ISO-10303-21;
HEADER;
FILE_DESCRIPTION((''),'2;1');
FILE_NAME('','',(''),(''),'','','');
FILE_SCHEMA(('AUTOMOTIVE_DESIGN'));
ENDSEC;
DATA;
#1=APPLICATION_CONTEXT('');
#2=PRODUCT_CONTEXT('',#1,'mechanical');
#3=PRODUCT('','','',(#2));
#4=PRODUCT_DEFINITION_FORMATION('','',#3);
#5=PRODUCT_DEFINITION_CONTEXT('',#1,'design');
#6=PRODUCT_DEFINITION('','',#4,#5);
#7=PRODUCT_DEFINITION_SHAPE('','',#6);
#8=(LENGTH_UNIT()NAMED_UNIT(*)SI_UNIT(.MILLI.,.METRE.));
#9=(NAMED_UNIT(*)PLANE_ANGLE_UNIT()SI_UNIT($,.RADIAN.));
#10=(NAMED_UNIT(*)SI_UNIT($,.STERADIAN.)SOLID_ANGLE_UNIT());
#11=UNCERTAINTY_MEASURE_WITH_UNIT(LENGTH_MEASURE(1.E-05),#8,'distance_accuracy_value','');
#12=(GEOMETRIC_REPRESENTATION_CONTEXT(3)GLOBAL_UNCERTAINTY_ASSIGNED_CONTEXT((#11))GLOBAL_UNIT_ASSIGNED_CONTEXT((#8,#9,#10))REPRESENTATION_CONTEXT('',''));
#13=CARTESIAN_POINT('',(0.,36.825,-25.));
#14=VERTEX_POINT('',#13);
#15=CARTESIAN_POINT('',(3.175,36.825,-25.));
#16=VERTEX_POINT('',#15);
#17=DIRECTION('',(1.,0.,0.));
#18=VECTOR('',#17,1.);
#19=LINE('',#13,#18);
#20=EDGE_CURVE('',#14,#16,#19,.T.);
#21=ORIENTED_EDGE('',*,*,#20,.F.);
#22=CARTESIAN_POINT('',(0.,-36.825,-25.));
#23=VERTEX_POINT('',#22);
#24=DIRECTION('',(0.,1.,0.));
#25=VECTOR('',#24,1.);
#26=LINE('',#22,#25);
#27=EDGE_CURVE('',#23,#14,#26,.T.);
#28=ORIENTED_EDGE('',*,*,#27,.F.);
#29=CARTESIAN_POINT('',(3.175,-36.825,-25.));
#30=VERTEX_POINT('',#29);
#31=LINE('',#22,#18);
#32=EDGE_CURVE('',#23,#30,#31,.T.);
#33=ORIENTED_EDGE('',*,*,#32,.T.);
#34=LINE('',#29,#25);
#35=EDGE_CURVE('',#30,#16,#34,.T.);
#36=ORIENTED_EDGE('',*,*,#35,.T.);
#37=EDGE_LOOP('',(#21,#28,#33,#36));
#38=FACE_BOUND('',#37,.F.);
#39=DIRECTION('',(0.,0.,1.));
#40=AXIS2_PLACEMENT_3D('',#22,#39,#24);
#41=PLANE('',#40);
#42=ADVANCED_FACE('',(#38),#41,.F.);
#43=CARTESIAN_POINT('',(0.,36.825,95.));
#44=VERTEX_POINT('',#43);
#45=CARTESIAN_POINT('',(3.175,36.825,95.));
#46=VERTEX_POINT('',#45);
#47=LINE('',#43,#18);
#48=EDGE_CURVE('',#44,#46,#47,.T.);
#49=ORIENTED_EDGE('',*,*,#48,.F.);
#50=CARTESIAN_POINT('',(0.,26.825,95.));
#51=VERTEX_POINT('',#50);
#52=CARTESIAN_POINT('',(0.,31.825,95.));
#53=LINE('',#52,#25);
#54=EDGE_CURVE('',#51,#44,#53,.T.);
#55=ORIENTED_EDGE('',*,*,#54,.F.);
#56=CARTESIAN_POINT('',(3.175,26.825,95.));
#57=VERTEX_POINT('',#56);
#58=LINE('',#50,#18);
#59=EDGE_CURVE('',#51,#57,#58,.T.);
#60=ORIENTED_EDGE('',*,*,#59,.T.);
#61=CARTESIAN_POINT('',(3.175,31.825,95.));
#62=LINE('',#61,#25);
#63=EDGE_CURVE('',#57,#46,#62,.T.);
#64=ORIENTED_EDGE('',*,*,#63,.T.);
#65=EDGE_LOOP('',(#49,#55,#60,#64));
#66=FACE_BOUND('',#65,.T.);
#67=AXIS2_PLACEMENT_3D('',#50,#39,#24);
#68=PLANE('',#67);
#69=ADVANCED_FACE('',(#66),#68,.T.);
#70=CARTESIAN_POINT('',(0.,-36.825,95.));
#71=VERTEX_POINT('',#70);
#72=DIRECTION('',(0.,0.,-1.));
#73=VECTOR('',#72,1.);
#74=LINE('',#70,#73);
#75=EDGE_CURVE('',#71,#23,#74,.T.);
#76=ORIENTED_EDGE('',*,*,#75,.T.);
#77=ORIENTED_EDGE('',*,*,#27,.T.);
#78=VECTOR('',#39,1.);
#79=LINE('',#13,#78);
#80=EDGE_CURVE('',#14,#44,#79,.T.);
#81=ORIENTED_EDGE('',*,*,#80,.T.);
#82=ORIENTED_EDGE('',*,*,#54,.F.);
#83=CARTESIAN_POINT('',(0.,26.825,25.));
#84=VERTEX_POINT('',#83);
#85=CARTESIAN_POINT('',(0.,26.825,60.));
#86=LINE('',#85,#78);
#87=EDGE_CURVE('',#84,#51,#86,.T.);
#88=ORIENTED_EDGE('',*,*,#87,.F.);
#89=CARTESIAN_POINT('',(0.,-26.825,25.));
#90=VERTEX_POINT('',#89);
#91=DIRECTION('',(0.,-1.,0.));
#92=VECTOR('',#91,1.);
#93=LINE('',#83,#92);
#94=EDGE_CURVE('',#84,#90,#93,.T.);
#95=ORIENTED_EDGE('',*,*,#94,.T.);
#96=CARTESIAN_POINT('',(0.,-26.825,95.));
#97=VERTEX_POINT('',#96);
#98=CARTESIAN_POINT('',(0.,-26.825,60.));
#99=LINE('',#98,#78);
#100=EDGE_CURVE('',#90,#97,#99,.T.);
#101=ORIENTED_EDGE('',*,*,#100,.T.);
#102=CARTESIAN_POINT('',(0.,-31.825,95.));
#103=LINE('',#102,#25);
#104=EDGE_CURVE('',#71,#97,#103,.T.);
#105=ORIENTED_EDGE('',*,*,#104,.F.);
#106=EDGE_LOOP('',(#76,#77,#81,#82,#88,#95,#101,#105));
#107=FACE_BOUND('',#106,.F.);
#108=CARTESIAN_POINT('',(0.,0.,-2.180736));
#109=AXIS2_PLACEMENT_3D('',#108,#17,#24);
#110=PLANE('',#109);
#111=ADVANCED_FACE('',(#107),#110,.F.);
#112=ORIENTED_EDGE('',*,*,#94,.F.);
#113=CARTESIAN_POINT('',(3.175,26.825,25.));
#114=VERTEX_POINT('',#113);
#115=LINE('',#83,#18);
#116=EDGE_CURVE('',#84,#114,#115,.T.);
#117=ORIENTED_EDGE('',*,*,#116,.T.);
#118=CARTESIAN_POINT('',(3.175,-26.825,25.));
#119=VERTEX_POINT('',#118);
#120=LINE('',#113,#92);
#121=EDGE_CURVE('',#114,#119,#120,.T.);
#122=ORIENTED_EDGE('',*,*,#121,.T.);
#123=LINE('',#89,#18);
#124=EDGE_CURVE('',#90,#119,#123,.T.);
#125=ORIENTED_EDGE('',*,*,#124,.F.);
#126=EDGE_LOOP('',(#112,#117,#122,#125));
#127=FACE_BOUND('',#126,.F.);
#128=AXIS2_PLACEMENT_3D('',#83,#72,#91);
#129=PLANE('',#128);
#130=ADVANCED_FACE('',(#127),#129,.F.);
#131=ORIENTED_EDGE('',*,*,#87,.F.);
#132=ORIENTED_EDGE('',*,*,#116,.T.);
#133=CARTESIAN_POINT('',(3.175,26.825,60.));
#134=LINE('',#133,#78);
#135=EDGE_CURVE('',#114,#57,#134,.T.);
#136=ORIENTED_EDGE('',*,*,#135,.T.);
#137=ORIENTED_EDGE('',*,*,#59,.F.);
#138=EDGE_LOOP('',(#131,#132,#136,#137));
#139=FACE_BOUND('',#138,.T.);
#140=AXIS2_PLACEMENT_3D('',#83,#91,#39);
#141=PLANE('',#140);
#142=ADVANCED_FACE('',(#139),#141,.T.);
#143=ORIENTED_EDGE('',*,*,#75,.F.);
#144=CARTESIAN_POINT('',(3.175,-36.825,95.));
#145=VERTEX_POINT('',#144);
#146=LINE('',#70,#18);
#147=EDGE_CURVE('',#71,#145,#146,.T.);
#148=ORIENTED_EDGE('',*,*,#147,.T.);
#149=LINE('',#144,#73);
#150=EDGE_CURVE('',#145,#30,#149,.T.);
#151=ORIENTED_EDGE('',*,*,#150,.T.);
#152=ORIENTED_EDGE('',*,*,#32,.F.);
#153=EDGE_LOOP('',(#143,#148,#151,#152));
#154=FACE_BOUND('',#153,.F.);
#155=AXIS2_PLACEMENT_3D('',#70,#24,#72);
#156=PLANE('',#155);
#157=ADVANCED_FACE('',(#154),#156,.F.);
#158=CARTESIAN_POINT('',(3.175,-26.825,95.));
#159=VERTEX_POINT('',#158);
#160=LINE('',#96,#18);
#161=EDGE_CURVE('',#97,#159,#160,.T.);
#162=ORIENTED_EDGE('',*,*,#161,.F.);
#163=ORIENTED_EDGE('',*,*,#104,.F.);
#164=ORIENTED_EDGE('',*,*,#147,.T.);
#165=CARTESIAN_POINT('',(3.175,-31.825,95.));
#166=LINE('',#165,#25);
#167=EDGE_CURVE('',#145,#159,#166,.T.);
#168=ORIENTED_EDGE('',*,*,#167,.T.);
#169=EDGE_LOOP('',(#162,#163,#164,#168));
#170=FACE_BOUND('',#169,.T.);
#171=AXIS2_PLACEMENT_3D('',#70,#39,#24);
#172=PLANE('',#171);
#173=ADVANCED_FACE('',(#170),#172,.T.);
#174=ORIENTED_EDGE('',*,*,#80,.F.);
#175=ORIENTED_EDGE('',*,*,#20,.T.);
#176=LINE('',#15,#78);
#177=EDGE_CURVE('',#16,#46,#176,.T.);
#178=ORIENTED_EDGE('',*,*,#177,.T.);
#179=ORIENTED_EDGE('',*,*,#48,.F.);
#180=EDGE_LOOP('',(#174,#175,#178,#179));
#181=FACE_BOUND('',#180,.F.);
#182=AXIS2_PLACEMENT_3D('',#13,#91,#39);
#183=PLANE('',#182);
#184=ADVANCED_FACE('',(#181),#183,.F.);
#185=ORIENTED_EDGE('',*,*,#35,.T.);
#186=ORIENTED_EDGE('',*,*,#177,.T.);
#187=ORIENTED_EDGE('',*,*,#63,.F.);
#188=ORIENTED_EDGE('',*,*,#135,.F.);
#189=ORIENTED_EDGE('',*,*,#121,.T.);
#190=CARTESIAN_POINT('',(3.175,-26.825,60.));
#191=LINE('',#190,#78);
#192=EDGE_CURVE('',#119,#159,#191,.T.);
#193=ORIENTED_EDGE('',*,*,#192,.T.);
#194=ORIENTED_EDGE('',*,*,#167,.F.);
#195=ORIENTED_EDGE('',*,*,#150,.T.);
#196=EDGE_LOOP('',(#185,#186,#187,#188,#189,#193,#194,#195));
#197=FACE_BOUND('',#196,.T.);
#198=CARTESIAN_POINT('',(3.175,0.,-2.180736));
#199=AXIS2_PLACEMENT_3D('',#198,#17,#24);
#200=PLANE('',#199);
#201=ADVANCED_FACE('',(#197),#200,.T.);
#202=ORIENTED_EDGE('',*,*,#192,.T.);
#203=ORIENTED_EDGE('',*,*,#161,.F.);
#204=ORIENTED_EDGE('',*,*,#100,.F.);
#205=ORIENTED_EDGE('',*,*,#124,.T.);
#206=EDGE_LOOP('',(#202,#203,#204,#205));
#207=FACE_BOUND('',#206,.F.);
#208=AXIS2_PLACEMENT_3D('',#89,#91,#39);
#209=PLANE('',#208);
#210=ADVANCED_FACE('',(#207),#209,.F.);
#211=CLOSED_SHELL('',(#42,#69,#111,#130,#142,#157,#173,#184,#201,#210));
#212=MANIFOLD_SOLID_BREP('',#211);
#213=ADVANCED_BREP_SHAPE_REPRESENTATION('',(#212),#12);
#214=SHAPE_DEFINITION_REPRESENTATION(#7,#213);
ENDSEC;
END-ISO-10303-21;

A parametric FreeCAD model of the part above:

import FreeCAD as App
import Part
import Sketcher


def add_polygon(sketch, points):
    """Adds a closed chain of lines whose ends are joined by coincident constraints."""
    first, n = sketch.GeometryCount, len(points)
    for a, b in zip(points, points[1:] + points[:1]):
        sketch.addGeometry(Part.LineSegment(App.Vector(*a, 0), App.Vector(*b, 0)), False)
    for i in range(n):
        sketch.addConstraint(Sketcher.Constraint("Coincident", first + i, 2, first + (i + 1) % n, 1))

doc = App.newDocument("Part")
params = doc.addObject("Spreadsheet::Sheet", "Params")
for row, (alias, value) in enumerate([
    ("sketch1_width", "10 mm"),
    ("sketch1_height", "70 mm"),
    ("sketch1_height2", "120 mm"),
    ("sketch1_width2", "53.65 mm"),
    ("pad1_length", "3.175 mm"),
], start=1):
    params.set(f"A{row}", alias)
    params.set(f"B{row}", "=" + value)
    params.setAlias(f"B{row}", alias)

body = doc.addObject("PartDesign::Body", "Body")

sketch1 = body.newObject("Sketcher::SketchObject", "Sketch")
sketch1.AttachmentSupport = (doc.getObject("YZ_Plane"), [""])
sketch1.MapMode = "FlatFace"
add_polygon(sketch1, [(27, 25), (-27, 25), (-27, 95), (-37, 95), (-37, -25), (37, -25), (37, 95), (27, 95)])
sketch1.addConstraint(Sketcher.Constraint("Horizontal", 0))
sketch1.addConstraint(Sketcher.Constraint("Vertical", 1))
sketch1.addConstraint(Sketcher.Constraint("Horizontal", 2))
sketch1.addConstraint(Sketcher.Constraint("Vertical", 3))
sketch1.addConstraint(Sketcher.Constraint("Horizontal", 4))
sketch1.addConstraint(Sketcher.Constraint("Vertical", 5))
sketch1.addConstraint(Sketcher.Constraint("Horizontal", 6))
sketch1.addConstraint(Sketcher.Constraint("Vertical", 7))
sketch1.addConstraint(Sketcher.Constraint("Symmetric", 2, 2, 5, 2, -2))
sketch1.addConstraint(Sketcher.Constraint("Equal", 2, 6))
sketch1.addConstraint(Sketcher.Constraint("DistanceX", 2, 2, 2, 1, 10.0))
sketch1.addConstraint(Sketcher.Constraint("DistanceY", 1, 1, 1, 2, 70.0))
sketch1.addConstraint(Sketcher.Constraint("DistanceY", 3, 2, 3, 1, 120.0))
sketch1.addConstraint(Sketcher.Constraint("DistanceY", -1, 1, 0, 2, 25.0))
sketch1.addConstraint(Sketcher.Constraint("DistanceX", 0, 2, 0, 1, 53.65))
sketch1.setExpression("Constraints[18]", "Params.sketch1_width")
sketch1.setExpression("Constraints[19]", "Params.sketch1_height")
sketch1.setExpression("Constraints[20]", "Params.sketch1_height2")
sketch1.setExpression("Constraints[22]", "Params.sketch1_width2")
pad1 = body.newObject("PartDesign::Pad", "Pad")
pad1.Profile = sketch1
pad1.setExpression("Length", "Params.pad1_length")

doc.recompute()
